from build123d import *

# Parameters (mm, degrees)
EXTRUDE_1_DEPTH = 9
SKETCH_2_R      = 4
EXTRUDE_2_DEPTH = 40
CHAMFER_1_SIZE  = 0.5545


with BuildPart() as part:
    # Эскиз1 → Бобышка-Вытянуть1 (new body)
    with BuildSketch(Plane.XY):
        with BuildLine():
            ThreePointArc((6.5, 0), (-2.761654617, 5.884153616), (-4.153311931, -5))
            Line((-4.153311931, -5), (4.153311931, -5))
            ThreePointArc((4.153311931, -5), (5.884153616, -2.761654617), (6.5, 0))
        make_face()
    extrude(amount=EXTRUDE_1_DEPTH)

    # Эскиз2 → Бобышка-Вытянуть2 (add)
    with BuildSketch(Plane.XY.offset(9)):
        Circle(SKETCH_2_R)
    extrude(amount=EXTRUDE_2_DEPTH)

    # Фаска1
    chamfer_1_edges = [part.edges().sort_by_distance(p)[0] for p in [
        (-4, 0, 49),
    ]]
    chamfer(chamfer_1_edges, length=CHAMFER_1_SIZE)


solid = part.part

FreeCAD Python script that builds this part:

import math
import FreeCAD as App
import Part
import Sketcher
Q = App.Units.Quantity


def edges_at(feature, points):
    """Names of the edges that pass closest to the given points."""
    edges = feature.Shape.Edges
    near = lambda p: min(range(len(edges)), key=lambda i: edges[i].distToShape(Part.Vertex(*p))[0])
    return sorted({f"Edge{near(p) + 1}" for p in points})

doc = App.newDocument("Part")
params = doc.addObject("Spreadsheet::Sheet", "Params")
for row, (alias, value) in enumerate([
    ("sketch1_radius", "6.5 mm"),
    ("pad1_length", "9 mm"),
    ("sketch2_diameter", "8 mm"),
    ("pad2_length", "40 mm"),
    ("chamfer_size", "0.5545 mm"),
], start=1):
    params.set(f"A{row}", alias)
    params.set(f"B{row}", "=" + value)
    params.setAlias(f"B{row}", alias)

body = doc.addObject("PartDesign::Body", "Body")

# Sketch on XY plane
sketch1 = body.newObject("Sketcher::SketchObject", "Sketch")
sketch1.AttachmentSupport = (doc.getObject("XY_Plane"), [""])
sketch1.MapMode = "FlatFace"
sketch1.addGeometry([
    Part.ArcOfCircle(Part.Circle(App.Vector(0, 0, 0), App.Vector(0, 0, 1), 6), math.radians(0), math.radians(230)),
    Part.LineSegment(App.Vector(-4, -5, 0), App.Vector(4, -5, 0)),
    Part.ArcOfCircle(Part.Circle(App.Vector(0, 0, 0), App.Vector(0, 0, 1), 6), math.radians(-50), math.radians(0)),
], False)
sketch1.addConstraint([
    Sketcher.Constraint("Coincident", 0, 2, 1, 1),
    Sketcher.Constraint("Coincident", 1, 2, 2, 1),
    Sketcher.Constraint("Tangent", 2, 2, 0, 1),
    Sketcher.Constraint("Horizontal", 1),
    Sketcher.Constraint("Coincident", 0, 3, -1, 1),
    Sketcher.Constraint("Equal", 0, 2),
    Sketcher.Constraint("PointOnObject", 2, 2, -1),
    Sketcher.Constraint("Radius", 0, Q("6.5 mm")),
    Sketcher.Constraint("DistanceY", 0, 2, -1, 1, Q("5 mm")),
])
sketch1.setExpression("Constraints[7]", "Params.sketch1_radius")
pad1 = body.newObject("PartDesign::Pad", "Pad")
pad1.Profile = sketch1
pad1.setExpression("Length", "Params.pad1_length")

# Sketch on XY plane
sketch2 = body.newObject("Sketcher::SketchObject", "Sketch001")
sketch2.AttachmentSupport = (doc.getObject("XY_Plane"), [""])
sketch2.MapMode = "FlatFace"
sketch2.AttachmentOffset = App.Placement(App.Vector(0, 0, 9), App.Rotation())
sketch2.addGeometry(Part.Circle(App.Vector(0, 0, 0), App.Vector(0, 0, 1), 4), False)
sketch2.addConstraint([
    Sketcher.Constraint("Coincident", 0, 3, -1, 1),
    Sketcher.Constraint("Diameter", 0, Q("8 mm")),
])
sketch2.setExpression("Constraints[1]", "Params.sketch2_diameter")
pad2 = body.newObject("PartDesign::Pad", "Pad001")
pad2.Profile = sketch2
pad2.setExpression("Length", "Params.pad2_length")
doc.recompute()

chamfer = body.newObject("PartDesign::Chamfer", "Chamfer")
chamfer.Base = (pad2, edges_at(pad2, [(-4, 0, 49)]))
chamfer.setExpression("Size", "Params.chamfer_size")

doc.recompute()
